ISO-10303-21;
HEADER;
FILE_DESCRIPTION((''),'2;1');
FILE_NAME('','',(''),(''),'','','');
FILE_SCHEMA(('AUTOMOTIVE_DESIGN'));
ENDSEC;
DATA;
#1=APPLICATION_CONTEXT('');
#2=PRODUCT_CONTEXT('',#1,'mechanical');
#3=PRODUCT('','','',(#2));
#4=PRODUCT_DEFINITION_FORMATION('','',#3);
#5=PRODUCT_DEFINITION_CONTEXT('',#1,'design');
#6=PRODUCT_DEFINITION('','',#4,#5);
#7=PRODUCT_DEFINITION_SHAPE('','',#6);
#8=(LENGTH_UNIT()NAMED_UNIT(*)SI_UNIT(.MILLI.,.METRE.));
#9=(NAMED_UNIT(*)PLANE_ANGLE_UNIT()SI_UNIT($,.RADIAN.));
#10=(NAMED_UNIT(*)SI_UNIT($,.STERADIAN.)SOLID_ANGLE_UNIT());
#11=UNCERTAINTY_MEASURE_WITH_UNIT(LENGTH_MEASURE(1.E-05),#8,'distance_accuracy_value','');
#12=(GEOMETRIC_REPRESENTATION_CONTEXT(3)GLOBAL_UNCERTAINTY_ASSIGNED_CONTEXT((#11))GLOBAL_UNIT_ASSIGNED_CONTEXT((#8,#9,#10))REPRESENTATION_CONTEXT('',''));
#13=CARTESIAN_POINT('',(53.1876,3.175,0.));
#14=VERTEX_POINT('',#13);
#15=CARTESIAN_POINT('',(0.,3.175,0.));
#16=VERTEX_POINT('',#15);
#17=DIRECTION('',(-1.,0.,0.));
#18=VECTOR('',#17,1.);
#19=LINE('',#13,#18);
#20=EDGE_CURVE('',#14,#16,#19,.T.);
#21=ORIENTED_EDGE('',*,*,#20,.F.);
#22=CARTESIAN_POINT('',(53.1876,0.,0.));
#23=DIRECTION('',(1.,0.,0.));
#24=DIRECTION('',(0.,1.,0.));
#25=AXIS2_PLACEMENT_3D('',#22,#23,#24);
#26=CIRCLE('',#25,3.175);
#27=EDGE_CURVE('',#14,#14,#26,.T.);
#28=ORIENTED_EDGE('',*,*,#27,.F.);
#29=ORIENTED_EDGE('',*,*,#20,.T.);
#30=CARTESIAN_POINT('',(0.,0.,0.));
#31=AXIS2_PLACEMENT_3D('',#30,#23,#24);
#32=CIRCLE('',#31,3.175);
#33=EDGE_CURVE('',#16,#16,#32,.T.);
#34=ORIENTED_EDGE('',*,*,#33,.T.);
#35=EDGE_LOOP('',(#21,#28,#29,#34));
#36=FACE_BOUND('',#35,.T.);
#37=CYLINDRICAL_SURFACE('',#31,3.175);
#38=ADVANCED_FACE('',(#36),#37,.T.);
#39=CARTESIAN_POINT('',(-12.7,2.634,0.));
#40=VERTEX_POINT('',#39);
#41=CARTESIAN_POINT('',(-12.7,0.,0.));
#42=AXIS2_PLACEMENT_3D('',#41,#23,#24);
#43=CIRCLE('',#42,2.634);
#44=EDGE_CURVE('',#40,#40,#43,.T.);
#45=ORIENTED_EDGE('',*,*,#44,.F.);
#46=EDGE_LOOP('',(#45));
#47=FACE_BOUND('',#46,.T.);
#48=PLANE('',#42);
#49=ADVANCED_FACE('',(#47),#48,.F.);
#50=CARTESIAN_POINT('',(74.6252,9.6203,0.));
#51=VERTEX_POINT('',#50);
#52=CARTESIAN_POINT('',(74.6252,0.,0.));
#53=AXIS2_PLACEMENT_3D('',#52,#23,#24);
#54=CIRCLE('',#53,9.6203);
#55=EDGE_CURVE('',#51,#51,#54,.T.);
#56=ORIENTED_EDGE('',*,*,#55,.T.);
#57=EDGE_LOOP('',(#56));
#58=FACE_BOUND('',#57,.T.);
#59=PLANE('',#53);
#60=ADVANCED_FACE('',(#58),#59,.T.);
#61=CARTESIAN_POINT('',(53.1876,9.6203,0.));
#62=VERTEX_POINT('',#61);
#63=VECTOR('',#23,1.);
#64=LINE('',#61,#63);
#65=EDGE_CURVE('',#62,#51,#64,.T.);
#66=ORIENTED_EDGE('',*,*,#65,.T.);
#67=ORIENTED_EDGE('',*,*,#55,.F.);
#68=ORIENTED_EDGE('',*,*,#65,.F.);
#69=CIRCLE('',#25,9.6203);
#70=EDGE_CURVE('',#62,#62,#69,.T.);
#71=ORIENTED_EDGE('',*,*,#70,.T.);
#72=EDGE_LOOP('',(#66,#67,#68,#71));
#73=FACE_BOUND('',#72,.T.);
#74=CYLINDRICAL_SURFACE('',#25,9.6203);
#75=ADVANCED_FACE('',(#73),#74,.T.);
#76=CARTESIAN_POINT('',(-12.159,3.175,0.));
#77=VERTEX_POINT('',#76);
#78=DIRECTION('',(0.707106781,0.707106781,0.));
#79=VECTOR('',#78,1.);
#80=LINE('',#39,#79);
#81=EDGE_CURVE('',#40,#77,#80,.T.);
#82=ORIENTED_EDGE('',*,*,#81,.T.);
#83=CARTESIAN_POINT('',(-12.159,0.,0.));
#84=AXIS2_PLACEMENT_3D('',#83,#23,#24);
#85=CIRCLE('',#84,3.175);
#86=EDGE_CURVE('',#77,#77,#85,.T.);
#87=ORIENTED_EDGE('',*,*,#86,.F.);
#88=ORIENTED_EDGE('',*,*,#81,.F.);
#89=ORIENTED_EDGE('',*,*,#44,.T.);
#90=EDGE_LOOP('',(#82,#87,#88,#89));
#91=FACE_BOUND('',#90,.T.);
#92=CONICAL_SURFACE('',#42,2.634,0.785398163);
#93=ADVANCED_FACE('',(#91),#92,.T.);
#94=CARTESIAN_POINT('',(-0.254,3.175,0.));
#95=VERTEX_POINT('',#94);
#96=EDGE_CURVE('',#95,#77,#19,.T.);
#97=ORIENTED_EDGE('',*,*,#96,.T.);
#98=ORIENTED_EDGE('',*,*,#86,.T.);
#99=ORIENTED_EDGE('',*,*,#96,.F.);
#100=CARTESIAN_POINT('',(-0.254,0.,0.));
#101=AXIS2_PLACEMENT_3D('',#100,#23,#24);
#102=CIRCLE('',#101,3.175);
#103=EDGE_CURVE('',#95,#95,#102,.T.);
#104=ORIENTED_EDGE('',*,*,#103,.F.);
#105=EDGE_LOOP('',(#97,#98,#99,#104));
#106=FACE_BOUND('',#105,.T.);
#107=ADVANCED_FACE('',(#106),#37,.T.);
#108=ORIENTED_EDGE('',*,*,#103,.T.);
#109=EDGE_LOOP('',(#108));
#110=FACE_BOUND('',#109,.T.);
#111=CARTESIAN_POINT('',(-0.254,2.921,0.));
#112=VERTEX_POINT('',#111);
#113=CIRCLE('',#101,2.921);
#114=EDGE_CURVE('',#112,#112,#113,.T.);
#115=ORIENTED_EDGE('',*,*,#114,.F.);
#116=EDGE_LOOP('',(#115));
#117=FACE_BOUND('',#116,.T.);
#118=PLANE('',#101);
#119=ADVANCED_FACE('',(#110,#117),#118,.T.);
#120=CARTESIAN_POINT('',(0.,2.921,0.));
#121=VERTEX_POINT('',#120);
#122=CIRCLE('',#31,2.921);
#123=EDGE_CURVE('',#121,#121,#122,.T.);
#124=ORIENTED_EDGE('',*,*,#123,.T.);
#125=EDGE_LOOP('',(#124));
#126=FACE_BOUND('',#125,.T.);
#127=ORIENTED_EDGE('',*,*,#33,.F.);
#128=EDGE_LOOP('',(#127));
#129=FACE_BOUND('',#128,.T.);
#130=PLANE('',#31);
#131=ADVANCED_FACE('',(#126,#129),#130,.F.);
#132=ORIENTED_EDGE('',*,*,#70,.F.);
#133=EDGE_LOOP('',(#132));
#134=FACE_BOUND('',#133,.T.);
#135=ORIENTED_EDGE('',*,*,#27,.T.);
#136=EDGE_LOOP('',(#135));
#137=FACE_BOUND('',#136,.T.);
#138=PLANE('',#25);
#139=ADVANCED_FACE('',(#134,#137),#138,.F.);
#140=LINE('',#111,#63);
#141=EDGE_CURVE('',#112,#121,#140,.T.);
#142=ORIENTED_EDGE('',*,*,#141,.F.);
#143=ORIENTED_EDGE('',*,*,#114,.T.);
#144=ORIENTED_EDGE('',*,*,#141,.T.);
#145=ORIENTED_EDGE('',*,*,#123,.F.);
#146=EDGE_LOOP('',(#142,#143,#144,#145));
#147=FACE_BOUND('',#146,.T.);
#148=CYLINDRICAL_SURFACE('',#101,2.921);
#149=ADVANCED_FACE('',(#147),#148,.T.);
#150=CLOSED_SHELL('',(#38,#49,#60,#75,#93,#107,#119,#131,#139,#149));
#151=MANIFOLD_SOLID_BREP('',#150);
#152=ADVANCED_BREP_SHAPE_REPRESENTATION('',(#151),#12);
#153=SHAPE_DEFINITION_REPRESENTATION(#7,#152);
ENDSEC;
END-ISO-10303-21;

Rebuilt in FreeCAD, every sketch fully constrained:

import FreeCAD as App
import Part
import Sketcher
from FreeCAD import Vector
Q = App.Units.Quantity


def add_polygon(sketch, points):
    """Adds a closed chain of lines whose ends are joined by coincident constraints."""
    first, n = sketch.GeometryCount, len(points)
    for a, b in zip(points, points[1:] + points[:1]):
        sketch.addGeometry(Part.LineSegment(App.Vector(*a, 0), App.Vector(*b, 0)), False)
    for i in range(n):
        sketch.addConstraint(Sketcher.Constraint("Coincident", first + i, 2, first + (i + 1) % n, 1))

doc = App.newDocument("Part")
params = doc.addObject("Spreadsheet::Sheet", "Params")
for row, (alias, value) in enumerate([
    ("sketch1_width", "2.938 in"),
    ("sketch1_width2", "0.844 in"),
    ("sketch1_height", "0.125 in"),
    ("revolution_angle", "360 deg"),
    ("sketch2_width", "0.5 in"),
    ("sketch2_height", "0.125 in"),
    ("revolution2_angle", "360 deg"),
    ("sketch3_width", "0.01 in"),
    ("sketch3_height", "0.02 in"),
    ("groove_angle", "360 deg"),
], start=1):
    params.set(f"A{row}", alias)
    params.set(f"B{row}", "=" + value)
    params.setAlias(f"B{row}", alias)

body = doc.addObject("PartDesign::Body", "Body")

sketch1 = doc.addObject("Sketcher::SketchObject", "Sketch")
body.addObject(sketch1)
sketch1.AttachmentSupport = (doc.XY_Plane, [""])
sketch1.MapMode = "FlatFace"
add_polygon(sketch1, [(0, 0), (74.6, 0), (74.6, 9.6), (53.2, 9.6), (53.2, 3.2), (0, 3.2)])
sketch1.addConstraint(Sketcher.Constraint("Horizontal", 0))
sketch1.addConstraint(Sketcher.Constraint("Vertical", 1))
sketch1.addConstraint(Sketcher.Constraint("Horizontal", 2))
sketch1.addConstraint(Sketcher.Constraint("Vertical", 3))
sketch1.addConstraint(Sketcher.Constraint("Horizontal", 4))
sketch1.addConstraint(Sketcher.Constraint("Vertical", 5))
sketch1.addConstraint(Sketcher.Constraint("Coincident", 5, 2, -1, 1))
sketch1.addConstraint(Sketcher.Constraint("DistanceX", 0, 1, 0, 2, Q("2.938 in")))
sketch1.addConstraint(Sketcher.Constraint("DistanceX", 2, 2, 2, 1, Q("0.844 in")))
sketch1.addConstraint(Sketcher.Constraint("DistanceY", 5, 2, 5, 1, Q("0.125 in")))
sketch1.addConstraint(Sketcher.Constraint("DistanceY", 1, 1, 1, 2, 9.6203))
sketch1.setExpression("Constraints[13]", "Params.sketch1_width")
sketch1.setExpression("Constraints[14]", "Params.sketch1_width2")
sketch1.setExpression("Constraints[15]", "Params.sketch1_height")
revolution = doc.addObject("PartDesign::Revolution", "Revolution")
body.addObject(revolution)
revolution.Profile = sketch1
revolution.ReferenceAxis = (sketch1, ["H_Axis"])
revolution.setExpression("Angle", "Params.revolution_angle")

sketch2 = doc.addObject("Sketcher::SketchObject", "Sketch001")
body.addObject(sketch2)
sketch2.AttachmentSupport = (doc.XY_Plane, [""])
sketch2.MapMode = "FlatFace"
add_polygon(sketch2, [(-12.7, 0), (0, 0), (0, 3.2), (-12.2, 3.2), (-12.7, 2.6)])
sketch2.addConstraint(Sketcher.Constraint("Horizontal", 0))
sketch2.addConstraint(Sketcher.Constraint("Vertical", 1))
sketch2.addConstraint(Sketcher.Constraint("Horizontal", 2))
sketch2.addConstraint(Sketcher.Constraint("Vertical", 4))
sketch2.addConstraint(Sketcher.Constraint("Coincident", 0, 2, -1, 1))
sketch2.addConstraint(Sketcher.Constraint("DistanceX", 0, 1, 0, 2, Q("0.5 in")))
sketch2.addConstraint(Sketcher.Constraint("Angle", 3, Q("-135 deg")))
sketch2.addConstraint(Sketcher.Constraint("DistanceY", 1, 1, 1, 2, Q("0.125 in")))
sketch2.addConstraint(Sketcher.Constraint("DistanceX", 2, 2, 2, 1, Q("0.4787 in")))
sketch2.setExpression("Constraints[10]", "Params.sketch2_width")
sketch2.setExpression("Constraints[12]", "Params.sketch2_height")
revolution2 = doc.addObject("PartDesign::Revolution", "Revolution001")
body.addObject(revolution2)
revolution2.Profile = sketch2
revolution2.ReferenceAxis = (sketch2, ["H_Axis"])
revolution2.setExpression("Angle", "Params.revolution2_angle")

sketch3 = doc.addObject("Sketcher::SketchObject", "Sketch002")
body.addObject(sketch3)
sketch3.AttachmentSupport = (doc.XY_Plane, [""])
sketch3.MapMode = "FlatFace"
add_polygon(sketch3, [(0, 3.43), (-0.25, 3.43), (-0.25, 2.92), (0, 2.92)])
sketch3.addConstraint(Sketcher.Constraint("Horizontal", 0))
sketch3.addConstraint(Sketcher.Constraint("Vertical", 1))
sketch3.addConstraint(Sketcher.Constraint("Horizontal", 2))
sketch3.addConstraint(Sketcher.Constraint("Vertical", 3))
sketch3.addConstraint(Sketcher.Constraint("PointOnObject", 2, 2, -2))
sketch3.addConstraint(Sketcher.Constraint("DistanceX", 0, 2, 0, 1, Q("0.01 in")))
sketch3.addConstraint(Sketcher.Constraint("DistanceY", 1, 2, 1, 1, Q("0.02 in")))
sketch3.addConstraint(Sketcher.Constraint("DistanceY", -1, 1, 0, 2, Q("0.135 in")))
sketch3.setExpression("Constraints[9]", "Params.sketch3_width")
sketch3.setExpression("Constraints[10]", "Params.sketch3_height")
groove = doc.addObject("PartDesign::Groove", "Groove")
body.addObject(groove)
groove.Profile = sketch3
groove.ReferenceAxis = (sketch3, ["H_Axis"])
groove.setExpression("Angle", "Params.groove_angle")

doc.recompute()
